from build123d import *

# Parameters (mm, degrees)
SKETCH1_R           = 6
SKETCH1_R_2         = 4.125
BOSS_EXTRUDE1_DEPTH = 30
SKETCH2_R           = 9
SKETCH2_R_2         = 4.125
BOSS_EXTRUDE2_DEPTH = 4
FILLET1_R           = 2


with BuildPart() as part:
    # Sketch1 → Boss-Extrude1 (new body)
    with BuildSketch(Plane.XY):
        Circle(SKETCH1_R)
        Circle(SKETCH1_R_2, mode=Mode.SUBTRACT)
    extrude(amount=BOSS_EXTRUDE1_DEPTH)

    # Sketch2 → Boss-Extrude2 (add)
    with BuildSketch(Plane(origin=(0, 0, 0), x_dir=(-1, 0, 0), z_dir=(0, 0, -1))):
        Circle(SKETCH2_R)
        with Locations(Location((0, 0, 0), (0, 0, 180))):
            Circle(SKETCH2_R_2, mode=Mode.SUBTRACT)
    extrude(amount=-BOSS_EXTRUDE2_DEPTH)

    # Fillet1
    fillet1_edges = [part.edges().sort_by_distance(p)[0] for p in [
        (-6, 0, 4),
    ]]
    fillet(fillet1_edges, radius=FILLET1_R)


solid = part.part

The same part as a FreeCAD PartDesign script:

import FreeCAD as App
import Part
import Sketcher

V = App.Vector
Q = App.Units.Quantity


def edges_at(feature, points):
    """Names of the edges that pass closest to the given points."""
    edges = feature.Shape.Edges
    near = lambda p: min(range(len(edges)), key=lambda i: edges[i].distToShape(Part.Vertex(*p))[0])
    return sorted({f"Edge{near(p) + 1}" for p in points})

doc = App.newDocument("Part")
body = doc.addObject("PartDesign::Body", "Body")

# Sketch on XY plane
sketch1 = body.newObject("Sketcher::SketchObject", "Sketch")
sketch1.AttachmentSupport = (doc.getObject("XY_Plane"), [""])
sketch1.MapMode = "FlatFace"
sketch1.addGeometry(Part.Circle(V(0, 0, 0), V(0, 0, 1), 6), False)
sketch1.addGeometry(Part.Circle(V(0, 0, 0), V(0, 0, 1), 4.1), False)
sketch1.addConstraint(Sketcher.Constraint("Coincident", 0, 3, -1, 1))
sketch1.addConstraint(Sketcher.Constraint("Coincident", 1, 3, -1, 1))
sketch1.addConstraint(Sketcher.Constraint("Diameter", 0, Q("12 mm")))
sketch1.addConstraint(Sketcher.Constraint("Diameter", 1, Q("8.25 mm")))
pad1 = body.newObject("PartDesign::Pad", "Pad")
pad1.Profile = sketch1
pad1.Length = 30

# Sketch on XY plane
sketch2 = body.newObject("Sketcher::SketchObject", "Sketch001")
sketch2.AttachmentSupport = (doc.getObject("XY_Plane"), [""])
sketch2.MapMode = "FlatFace"
sketch2.addGeometry(Part.Circle(V(0, 0, 0), V(0, 0, 1), 9), False)
sketch2.addGeometry(Part.Circle(V(0, 0, 0), V(0, 0, 1), 4.1), False)
sketch2.addConstraint(Sketcher.Constraint("Coincident", 0, 3, -1, 1))
sketch2.addConstraint(Sketcher.Constraint("Coincident", 1, 3, -1, 1))
sketch2.addConstraint(Sketcher.Constraint("Diameter", 0, Q("18 mm")))
sketch2.addConstraint(Sketcher.Constraint("Diameter", 1, Q("8.25 mm")))
pad2 = body.newObject("PartDesign::Pad", "Pad001")
pad2.Profile = sketch2
pad2.Length = 4
doc.recompute()

fillet = body.newObject("PartDesign::Fillet", "Fillet")
fillet.Base = (pad2, edges_at(pad2, [(-6, 0, 4)]))
fillet.Radius = 2

doc.recompute()
